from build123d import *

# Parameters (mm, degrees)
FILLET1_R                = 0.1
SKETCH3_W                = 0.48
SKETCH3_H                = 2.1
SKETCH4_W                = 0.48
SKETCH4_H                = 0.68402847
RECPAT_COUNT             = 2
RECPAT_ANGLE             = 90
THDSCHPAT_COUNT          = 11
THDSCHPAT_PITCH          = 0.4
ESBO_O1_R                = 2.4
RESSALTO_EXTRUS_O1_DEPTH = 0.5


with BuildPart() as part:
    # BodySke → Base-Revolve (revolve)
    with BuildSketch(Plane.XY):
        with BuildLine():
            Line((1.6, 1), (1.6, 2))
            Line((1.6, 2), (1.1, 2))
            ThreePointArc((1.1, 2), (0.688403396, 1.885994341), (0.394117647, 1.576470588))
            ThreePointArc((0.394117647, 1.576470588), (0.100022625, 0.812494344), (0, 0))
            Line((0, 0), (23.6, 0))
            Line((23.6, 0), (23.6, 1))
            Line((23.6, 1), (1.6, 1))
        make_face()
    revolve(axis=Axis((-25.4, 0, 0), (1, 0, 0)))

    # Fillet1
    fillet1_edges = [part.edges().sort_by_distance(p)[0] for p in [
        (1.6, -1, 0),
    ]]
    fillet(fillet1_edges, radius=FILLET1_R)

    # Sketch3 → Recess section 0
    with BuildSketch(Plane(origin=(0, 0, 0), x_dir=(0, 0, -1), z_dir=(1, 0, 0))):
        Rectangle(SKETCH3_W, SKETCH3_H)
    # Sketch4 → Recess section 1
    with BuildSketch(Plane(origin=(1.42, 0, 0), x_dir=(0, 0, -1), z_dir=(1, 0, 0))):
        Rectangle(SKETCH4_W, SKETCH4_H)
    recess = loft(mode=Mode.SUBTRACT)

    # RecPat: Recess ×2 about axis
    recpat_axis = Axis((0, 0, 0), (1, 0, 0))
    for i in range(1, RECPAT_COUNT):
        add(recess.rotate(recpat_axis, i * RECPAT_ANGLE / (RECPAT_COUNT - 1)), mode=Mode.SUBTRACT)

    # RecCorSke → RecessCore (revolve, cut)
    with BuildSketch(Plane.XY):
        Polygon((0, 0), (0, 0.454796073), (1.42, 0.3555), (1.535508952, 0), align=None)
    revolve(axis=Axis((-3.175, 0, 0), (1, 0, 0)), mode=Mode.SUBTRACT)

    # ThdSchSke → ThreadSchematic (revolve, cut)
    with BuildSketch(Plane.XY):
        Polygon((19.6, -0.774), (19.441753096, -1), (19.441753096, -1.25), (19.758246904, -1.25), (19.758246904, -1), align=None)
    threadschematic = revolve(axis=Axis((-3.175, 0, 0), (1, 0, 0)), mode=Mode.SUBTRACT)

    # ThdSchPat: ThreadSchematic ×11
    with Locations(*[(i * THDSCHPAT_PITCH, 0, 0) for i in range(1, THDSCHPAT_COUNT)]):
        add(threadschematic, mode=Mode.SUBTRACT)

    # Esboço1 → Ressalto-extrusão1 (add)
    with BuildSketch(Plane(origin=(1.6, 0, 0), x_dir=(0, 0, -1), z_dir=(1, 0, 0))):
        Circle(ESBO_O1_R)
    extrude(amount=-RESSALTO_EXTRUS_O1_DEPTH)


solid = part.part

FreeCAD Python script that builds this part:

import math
import FreeCAD as App
import Part
import Sketcher
from FreeCAD import Vector
Q = App.Units.Quantity


def edges_at(feature, points):
    """Names of the edges that pass closest to the given points."""
    edges = feature.Shape.Edges
    near = lambda p: min(range(len(edges)), key=lambda i: edges[i].distToShape(Part.Vertex(*p))[0])
    return sorted({f"Edge{near(p) + 1}" for p in points})


def add_polygon(sketch, points):
    """Adds a closed chain of lines whose ends are joined by coincident constraints."""
    first, n = sketch.GeometryCount, len(points)
    for a, b in zip(points, points[1:] + points[:1]):
        sketch.addGeometry(Part.LineSegment(App.Vector(*a, 0), App.Vector(*b, 0)), False)
    for i in range(n):
        sketch.addConstraint(Sketcher.Constraint("Coincident", first + i, 2, first + (i + 1) % n, 1))

doc = App.newDocument("Part")
body = doc.addObject("PartDesign::Body", "Body")

# Sketch on XY plane
sketch1 = body.newObject("Sketcher::SketchObject", "Sketch")
sketch1.AttachmentSupport = (doc.getObject("XY_Plane"), [""])
sketch1.MapMode = "FlatFace"
sketch1.addGeometry([
    Part.LineSegment(Vector(1.6, 1, 0), Vector(1.6, 2, 0)),  # 0
    Part.LineSegment(Vector(1.6, 2, 0), Vector(1.1, 2, 0)),  # 1
    Part.ArcOfCircle(Part.Circle(Vector(1.1, 1.2, 0), Vector(0, 0, 1), 0.8), math.radians(90), math.radians(151.927513)),  # 2
    Part.ArcOfCircle(Part.Circle(Vector(3.35, 0, 0), Vector(0, 0, 1), 3.35), math.radians(151.927513), math.radians(180)),  # 3
    Part.LineSegment(Vector(0, 0, 0), Vector(23.6, 0, 0)),  # 4
    Part.LineSegment(Vector(23.6, 0, 0), Vector(23.6, 1, 0)),  # 5
    Part.LineSegment(Vector(23.6, 1, 0), Vector(1.6, 1, 0)),  # 6
], False)
sketch1.addConstraint([
    Sketcher.Constraint("Coincident", 0, 2, 1, 1),
    Sketcher.Constraint("Tangent", 1, 2, 2, 1),
    Sketcher.Constraint("Tangent", 2, 2, 3, 1),
    Sketcher.Constraint("Coincident", 3, 2, 4, 1),
    Sketcher.Constraint("Coincident", 4, 2, 5, 1),
    Sketcher.Constraint("Coincident", 5, 2, 6, 1),
    Sketcher.Constraint("Coincident", 6, 2, 0, 1),
    Sketcher.Constraint("Vertical", 0),
    Sketcher.Constraint("Horizontal", 1),
    Sketcher.Constraint("Horizontal", 4),
    Sketcher.Constraint("Vertical", 5),
    Sketcher.Constraint("Horizontal", 6),
    Sketcher.Constraint("Coincident", 3, 2, -1, 1),
    Sketcher.Constraint("PointOnObject", 3, 3, -1),
    Sketcher.Constraint("Equal", 0, 5),
    Sketcher.Constraint("Radius", 2, 0.8),
    Sketcher.Constraint("DistanceX", 6, 2, 6, 1, 22.0),
    Sketcher.Constraint("DistanceY", 0, 1, 0, 2, 1.0),
    Sketcher.Constraint("Radius", 3, 3.35),
    Sketcher.Constraint("DistanceX", 1, 2, 1, 1, 0.5),
])
revolution = body.newObject("PartDesign::Revolution", "Revolution")
revolution.Profile = sketch1
revolution.ReferenceAxis = (sketch1, ["H_Axis"])
revolution.Angle = 360
doc.recompute()

fillet = body.newObject("PartDesign::Fillet", "Fillet")
fillet.Base = (revolution, edges_at(revolution, [(1.6, -1, 0)]))
fillet.Radius = 0.1

# Sketch on YZ plane
sketch2 = body.newObject("Sketcher::SketchObject", "Sketch001")
sketch2.AttachmentSupport = (doc.getObject("YZ_Plane"), [""])
sketch2.MapMode = "FlatFace"
add_polygon(sketch2, [(1.05, 0.24), (-1.05, 0.24), (-1.05, -0.24), (1.05, -0.24)])  # lines 0-3
sketch2.addConstraint([
    Sketcher.Constraint("Horizontal", 0),
    Sketcher.Constraint("Vertical", 1),
    Sketcher.Constraint("Horizontal", 2),
    Sketcher.Constraint("Vertical", 3),
    Sketcher.Constraint("Symmetric", 0, 2, 2, 2, -1, 1),
    Sketcher.Constraint("DistanceX", 0, 2, 0, 1, 2.1),
    Sketcher.Constraint("DistanceY", 1, 2, 1, 1, 0.48),
])

# Sketch on YZ plane
sketch3 = body.newObject("Sketcher::SketchObject", "Sketch002")
sketch3.AttachmentSupport = (doc.getObject("YZ_Plane"), [""])
sketch3.MapMode = "FlatFace"
sketch3.AttachmentOffset = App.Placement(Vector(0, 0, 1.42), App.Rotation())
add_polygon(sketch3, [(0.342014, 0.24), (-0.342014, 0.24), (-0.342014, -0.24), (0.342014, -0.24)])  # lines 0-3
sketch3.addConstraint([
    Sketcher.Constraint("Horizontal", 0),
    Sketcher.Constraint("Vertical", 1),
    Sketcher.Constraint("Horizontal", 2),
    Sketcher.Constraint("Vertical", 3),
    Sketcher.Constraint("Symmetric", 0, 2, 2, 2, -1, 1),
    Sketcher.Constraint("DistanceY", 1, 2, 1, 1, 0.48),
    Sketcher.Constraint("DistanceX", 0, 2, 0, 1, 0.684028),
])

subtractiveloft = body.newObject("PartDesign::SubtractiveLoft", "SubtractiveLoft")
subtractiveloft.Profile = sketch2
subtractiveloft.Sections = [sketch3]
doc.recompute()

polarpattern = body.newObject("PartDesign::PolarPattern", "PolarPattern")
polarpattern.Originals = [subtractiveloft]
polarpattern.Axis = (doc.getObject("X_Axis"), [""])
polarpattern.Angle = 90
polarpattern.Occurrences = 2
body.Tip = polarpattern

# Sketch on XY plane
sketch4 = body.newObject("Sketcher::SketchObject", "Sketch003")
sketch4.AttachmentSupport = (doc.getObject("XY_Plane"), [""])
sketch4.MapMode = "FlatFace"
add_polygon(sketch4, [(0, 0.454796), (0, 0), (1.535509, 0), (1.42, 0.3555)])  # lines 0-3
sketch4.addConstraint([
    Sketcher.Constraint("Vertical", 0),
    Sketcher.Constraint("Horizontal", 1),
    Sketcher.Constraint("Coincident", 0, 2, -1, 1),
    Sketcher.Constraint("Angle", 2, Q("108 deg")),
    Sketcher.Constraint("Angle", 3, Q("176 deg")),
    Sketcher.Constraint("DistanceX", -1, 1, 2, 2, 1.42),
    Sketcher.Constraint("DistanceX", 1, 1, 1, 2, 1.535509),
])
groove = body.newObject("PartDesign::Groove", "Groove")
groove.Profile = sketch4
groove.ReferenceAxis = (sketch4, ["H_Axis"])
groove.Angle = 360

# Sketch on XY plane
sketch5 = body.newObject("Sketcher::SketchObject", "Sketch004")
sketch5.AttachmentSupport = (doc.getObject("XY_Plane"), [""])
sketch5.MapMode = "FlatFace"
add_polygon(sketch5, [(19.6, -0.774), (19.441753, -1), (19.441753, -1.25), (19.758247, -1.25), (19.758247, -1)])  # lines 0-4
sketch5.addConstraint([
    Sketcher.Constraint("Vertical", 1),
    Sketcher.Constraint("Horizontal", 2),
    Sketcher.Constraint("Vertical", 3),
    Sketcher.Constraint("Horizontal", 0, 2, 3, 2),
    Sketcher.Constraint("Equal", 0, 4),
    Sketcher.Constraint("Angle", 0, Q("-125 deg")),
    Sketcher.Constraint("DistanceY", 0, 2, -1, 1, 1.0),
    Sketcher.Constraint("DistanceY", 1, 2, 1, 1, 0.25),
    Sketcher.Constraint("DistanceX", -1, 1, 4, 2, 19.6),
    Sketcher.Constraint("DistanceY", 4, 2, -1, 1, 0.774),
])
groove2 = body.newObject("PartDesign::Groove", "Groove001")
groove2.Profile = sketch5
groove2.ReferenceAxis = (sketch5, ["H_Axis"])
groove2.Angle = 360
doc.recompute()

linearpattern = body.newObject("PartDesign::LinearPattern", "LinearPattern")
linearpattern.Originals = [groove2]
linearpattern.Direction = (doc.getObject("X_Axis"), [""])
linearpattern.Mode = "offset"
linearpattern.Offset = 0.4
linearpattern.Occurrences = 11
body.Tip = linearpattern

# Sketch on YZ plane
sketch6 = body.newObject("Sketcher::SketchObject", "Sketch005")
sketch6.AttachmentSupport = (doc.getObject("YZ_Plane"), [""])
sketch6.MapMode = "FlatFace"
sketch6.AttachmentOffset = App.Placement(Vector(0, 0, 1.6), App.Rotation())
sketch6.addGeometry(Part.Circle(Vector(0, 0, 0), Vector(0, 0, 1), 2.4), False)
sketch6.addConstraint([
    Sketcher.Constraint("Coincident", 0, 3, -1, 1),
    Sketcher.Constraint("Diameter", 0, 4.8),
])
pad1 = body.newObject("PartDesign::Pad", "Pad")
pad1.Profile = sketch6
pad1.Length = 0.5
pad1.Reversed = True

doc.recompute()
